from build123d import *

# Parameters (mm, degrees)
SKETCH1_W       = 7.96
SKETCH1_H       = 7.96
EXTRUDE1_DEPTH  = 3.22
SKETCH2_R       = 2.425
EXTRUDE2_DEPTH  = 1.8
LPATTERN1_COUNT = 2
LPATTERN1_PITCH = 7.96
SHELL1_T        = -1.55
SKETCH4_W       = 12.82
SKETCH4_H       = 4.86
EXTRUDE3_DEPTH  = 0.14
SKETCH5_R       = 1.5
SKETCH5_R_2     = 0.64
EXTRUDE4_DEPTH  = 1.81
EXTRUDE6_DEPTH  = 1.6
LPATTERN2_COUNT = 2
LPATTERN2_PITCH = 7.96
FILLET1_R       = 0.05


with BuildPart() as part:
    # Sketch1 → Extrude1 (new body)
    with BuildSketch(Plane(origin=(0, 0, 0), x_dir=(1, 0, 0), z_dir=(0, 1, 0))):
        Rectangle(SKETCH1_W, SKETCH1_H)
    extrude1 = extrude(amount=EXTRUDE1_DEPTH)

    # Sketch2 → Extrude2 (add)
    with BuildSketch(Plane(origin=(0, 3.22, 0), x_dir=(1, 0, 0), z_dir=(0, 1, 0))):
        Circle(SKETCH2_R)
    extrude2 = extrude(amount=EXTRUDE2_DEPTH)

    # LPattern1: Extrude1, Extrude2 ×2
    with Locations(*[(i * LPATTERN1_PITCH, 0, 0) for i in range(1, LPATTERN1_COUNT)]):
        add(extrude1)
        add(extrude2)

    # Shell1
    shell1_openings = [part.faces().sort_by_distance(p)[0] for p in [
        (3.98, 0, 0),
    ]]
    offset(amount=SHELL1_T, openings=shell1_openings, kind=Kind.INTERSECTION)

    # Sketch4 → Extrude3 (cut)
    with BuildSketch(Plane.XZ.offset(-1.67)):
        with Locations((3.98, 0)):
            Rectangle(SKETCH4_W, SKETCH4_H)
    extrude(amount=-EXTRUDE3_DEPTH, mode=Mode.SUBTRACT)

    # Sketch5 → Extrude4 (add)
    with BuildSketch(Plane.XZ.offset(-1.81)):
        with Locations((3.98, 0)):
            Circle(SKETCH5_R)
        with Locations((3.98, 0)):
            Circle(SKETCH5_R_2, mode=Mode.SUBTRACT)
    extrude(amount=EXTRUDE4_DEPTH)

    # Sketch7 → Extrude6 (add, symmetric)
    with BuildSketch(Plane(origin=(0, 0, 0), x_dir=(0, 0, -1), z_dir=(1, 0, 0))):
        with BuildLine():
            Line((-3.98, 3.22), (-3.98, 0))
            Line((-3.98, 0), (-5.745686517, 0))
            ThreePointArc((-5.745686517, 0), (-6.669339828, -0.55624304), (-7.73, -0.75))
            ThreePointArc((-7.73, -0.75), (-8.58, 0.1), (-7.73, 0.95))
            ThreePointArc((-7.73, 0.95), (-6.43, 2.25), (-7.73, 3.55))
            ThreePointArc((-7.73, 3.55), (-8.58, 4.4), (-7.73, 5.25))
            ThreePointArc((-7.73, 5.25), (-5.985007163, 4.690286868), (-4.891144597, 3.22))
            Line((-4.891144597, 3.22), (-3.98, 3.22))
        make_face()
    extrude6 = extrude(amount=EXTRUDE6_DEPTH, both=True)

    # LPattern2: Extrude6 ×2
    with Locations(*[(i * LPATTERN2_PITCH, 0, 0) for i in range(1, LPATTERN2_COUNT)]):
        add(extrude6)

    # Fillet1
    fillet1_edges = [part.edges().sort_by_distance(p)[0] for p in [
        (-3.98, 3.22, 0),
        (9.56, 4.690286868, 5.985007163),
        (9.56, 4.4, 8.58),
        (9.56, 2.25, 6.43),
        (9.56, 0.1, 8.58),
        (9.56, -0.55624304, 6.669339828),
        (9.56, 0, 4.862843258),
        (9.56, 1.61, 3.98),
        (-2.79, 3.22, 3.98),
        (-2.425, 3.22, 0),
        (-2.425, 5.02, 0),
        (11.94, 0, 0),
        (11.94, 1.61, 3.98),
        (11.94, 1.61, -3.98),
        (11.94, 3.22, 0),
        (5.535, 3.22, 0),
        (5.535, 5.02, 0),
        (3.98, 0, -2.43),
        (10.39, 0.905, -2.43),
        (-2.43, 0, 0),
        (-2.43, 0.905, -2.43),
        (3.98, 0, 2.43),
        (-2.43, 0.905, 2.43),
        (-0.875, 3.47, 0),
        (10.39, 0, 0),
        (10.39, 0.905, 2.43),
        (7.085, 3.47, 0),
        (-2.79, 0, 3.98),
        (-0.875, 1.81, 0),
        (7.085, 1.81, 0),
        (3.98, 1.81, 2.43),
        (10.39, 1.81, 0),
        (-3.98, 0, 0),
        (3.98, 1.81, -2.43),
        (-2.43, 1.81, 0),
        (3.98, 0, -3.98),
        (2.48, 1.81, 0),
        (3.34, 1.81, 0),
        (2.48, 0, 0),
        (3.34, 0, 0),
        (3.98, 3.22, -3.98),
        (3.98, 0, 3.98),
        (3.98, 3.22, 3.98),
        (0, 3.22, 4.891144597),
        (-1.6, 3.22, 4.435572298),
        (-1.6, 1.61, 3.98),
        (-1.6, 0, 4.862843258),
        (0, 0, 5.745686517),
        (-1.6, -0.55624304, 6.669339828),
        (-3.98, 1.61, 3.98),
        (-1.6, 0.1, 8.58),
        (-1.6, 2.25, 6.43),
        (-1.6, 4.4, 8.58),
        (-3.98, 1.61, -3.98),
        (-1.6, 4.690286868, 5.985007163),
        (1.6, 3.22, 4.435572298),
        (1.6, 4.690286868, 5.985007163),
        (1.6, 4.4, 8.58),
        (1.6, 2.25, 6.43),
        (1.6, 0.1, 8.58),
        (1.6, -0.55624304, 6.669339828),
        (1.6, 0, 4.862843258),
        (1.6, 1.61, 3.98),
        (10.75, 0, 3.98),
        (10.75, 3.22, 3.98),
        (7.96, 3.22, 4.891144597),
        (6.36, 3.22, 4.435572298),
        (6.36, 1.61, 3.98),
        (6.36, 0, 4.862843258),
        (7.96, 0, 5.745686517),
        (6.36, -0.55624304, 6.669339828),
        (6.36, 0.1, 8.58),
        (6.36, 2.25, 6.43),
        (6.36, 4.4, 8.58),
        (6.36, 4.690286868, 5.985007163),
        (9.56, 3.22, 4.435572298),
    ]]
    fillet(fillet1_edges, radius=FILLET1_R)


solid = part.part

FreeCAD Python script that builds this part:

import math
import FreeCAD as App
import Part
import Sketcher

V = App.Vector
Q = App.Units.Quantity


def faces_at(feature, points):
    """Names of the faces that lie closest to the given points."""
    faces = feature.Shape.Faces
    near = lambda p: min(range(len(faces)), key=lambda i: faces[i].distToShape(Part.Vertex(*p))[0])
    return sorted({f"Face{near(p) + 1}" for p in points})

doc = App.newDocument("Part")
body = doc.addObject("PartDesign::Body", "Body")

# Sketch on XZ plane
sketch1 = body.newObject("Sketcher::SketchObject", "Sketch")
sketch1.AttachmentSupport = (doc.getObject("XZ_Plane"), [""])
sketch1.MapMode = "FlatFace"
sketch1.addGeometry(Part.LineSegment(V(-3.98, -3.98, 0), V(-3.98, 3.98, 0)), False)
sketch1.addGeometry(Part.LineSegment(V(-3.98, 3.98, 0), V(3.98, 3.98, 0)), False)
sketch1.addGeometry(Part.LineSegment(V(3.98, 3.98, 0), V(3.98, -3.98, 0)), False)
sketch1.addGeometry(Part.LineSegment(V(3.98, -3.98, 0), V(-3.98, -3.98, 0)), False)
sketch1.addConstraint(Sketcher.Constraint("Coincident", 0, 2, 1, 1))
sketch1.addConstraint(Sketcher.Constraint("Coincident", 1, 2, 2, 1))
sketch1.addConstraint(Sketcher.Constraint("Coincident", 2, 2, 3, 1))
sketch1.addConstraint(Sketcher.Constraint("Coincident", 3, 2, 0, 1))
sketch1.addConstraint(Sketcher.Constraint("Vertical", 0))
sketch1.addConstraint(Sketcher.Constraint("Horizontal", 1))
sketch1.addConstraint(Sketcher.Constraint("Vertical", 2))
sketch1.addConstraint(Sketcher.Constraint("Horizontal", 3))
sketch1.addConstraint(Sketcher.Constraint("Symmetric", 0, 2, 2, 2, -1, 1))
sketch1.addConstraint(Sketcher.Constraint("Equal", 3, 0))
sketch1.addConstraint(Sketcher.Constraint("DistanceX", 1, 1, 1, 2, Q("7.96 mm")))
pad1 = body.newObject("PartDesign::Pad", "Pad")
pad1.Profile = sketch1
pad1.Length = 3.22
pad1.Reversed = True

# Sketch on XZ plane
sketch2 = body.newObject("Sketcher::SketchObject", "Sketch001")
sketch2.AttachmentSupport = (doc.getObject("XZ_Plane"), [""])
sketch2.MapMode = "FlatFace"
sketch2.AttachmentOffset = App.Placement(V(0, 0, -3.22), App.Rotation())
sketch2.addGeometry(Part.Circle(V(0, 0, 0), V(0, 0, 1), 2.425), False)
sketch2.addConstraint(Sketcher.Constraint("Coincident", 0, 3, -1, 1))
sketch2.addConstraint(Sketcher.Constraint("Diameter", 0, Q("4.85 mm")))
pad2 = body.newObject("PartDesign::Pad", "Pad001")
pad2.Profile = sketch2
pad2.Length = 1.8
pad2.Reversed = True
doc.recompute()

linearpattern = body.newObject("PartDesign::LinearPattern", "LinearPattern")
linearpattern.Originals = [pad1, pad2]
linearpattern.Direction = (doc.getObject("X_Axis"), [""])
linearpattern.Mode = "offset"
linearpattern.Offset = 7.96
linearpattern.Occurrences = 2
body.Tip = linearpattern
doc.recompute()

thickness = body.newObject("PartDesign::Thickness", "Thickness")
thickness.Base = (linearpattern, faces_at(linearpattern, [(3.98, 0, 0)]))
thickness.Value = 1.55
thickness.Reversed = True
thickness.Join = "Intersection"

# Sketch on XZ plane
sketch3 = body.newObject("Sketcher::SketchObject", "Sketch002")
sketch3.AttachmentSupport = (doc.getObject("XZ_Plane"), [""])
sketch3.MapMode = "FlatFace"
sketch3.AttachmentOffset = App.Placement(V(0, 0, -1.67), App.Rotation())
sketch3.addGeometry(Part.LineSegment(V(-2.43, 2.43, 0), V(-2.43, -2.43, 0)), False)
sketch3.addGeometry(Part.LineSegment(V(-2.43, -2.43, 0), V(10.39, -2.43, 0)), False)
sketch3.addGeometry(Part.LineSegment(V(10.39, -2.43, 0), V(10.39, 2.43, 0)), False)
sketch3.addGeometry(Part.LineSegment(V(10.39, 2.43, 0), V(-2.43, 2.43, 0)), False)
sketch3.addConstraint(Sketcher.Constraint("Coincident", 0, 2, 1, 1))
sketch3.addConstraint(Sketcher.Constraint("Coincident", 1, 2, 2, 1))
sketch3.addConstraint(Sketcher.Constraint("Coincident", 2, 2, 3, 1))
sketch3.addConstraint(Sketcher.Constraint("Coincident", 3, 2, 0, 1))
sketch3.addConstraint(Sketcher.Constraint("Vertical", 0))
sketch3.addConstraint(Sketcher.Constraint("Horizontal", 1))
sketch3.addConstraint(Sketcher.Constraint("Vertical", 2))
sketch3.addConstraint(Sketcher.Constraint("Horizontal", 3))
sketch3.addConstraint(Sketcher.Constraint("DistanceX", 1, 1, 1, 2, Q("12.82 mm")))
sketch3.addConstraint(Sketcher.Constraint("DistanceY", 0, 2, 0, 1, Q("4.86 mm")))
sketch3.addConstraint(Sketcher.Constraint("DistanceX", 0, 2, -1, 1, Q("2.43 mm")))
sketch3.addConstraint(Sketcher.Constraint("DistanceY", 0, 2, -1, 1, Q("2.43 mm")))
pocket1 = body.newObject("PartDesign::Pocket", "Pocket")
pocket1.Profile = sketch3
pocket1.Length = 0.14

# Sketch on XZ plane
sketch4 = body.newObject("Sketcher::SketchObject", "Sketch003")
sketch4.AttachmentSupport = (doc.getObject("XZ_Plane"), [""])
sketch4.MapMode = "FlatFace"
sketch4.AttachmentOffset = App.Placement(V(0, 0, -1.81), App.Rotation())
sketch4.addGeometry(Part.Circle(V(3.98, 0, 0), V(0, 0, 1), 1.5), False)
sketch4.addGeometry(Part.Circle(V(3.98, 0, 0), V(0, 0, 1), 0.64), False)
sketch4.addConstraint(Sketcher.Constraint("Coincident", 1, 3, 0, 3))
sketch4.addConstraint(Sketcher.Constraint("PointOnObject", 0, 3, -1))
sketch4.addConstraint(Sketcher.Constraint("Diameter", 0, Q("3 mm")))
sketch4.addConstraint(Sketcher.Constraint("Diameter", 1, Q("1.28 mm")))
sketch4.addConstraint(Sketcher.Constraint("DistanceX", -1, 1, 0, 3, Q("3.98 mm")))
pad3 = body.newObject("PartDesign::Pad", "Pad002")
pad3.Profile = sketch4
pad3.Length = 1.81

# Sketch on YZ plane
sketch5 = body.newObject("Sketcher::SketchObject", "Sketch004")
sketch5.AttachmentSupport = (doc.getObject("YZ_Plane"), [""])
sketch5.MapMode = "FlatFace"
sketch5.addGeometry(Part.LineSegment(V(0, 3.98, 0), V(3.22, 3.98, 0)), False)
sketch5.addGeometry(Part.LineSegment(V(3.22, 3.98, 0), V(3.22, 4.891145, 0)), False)
sketch5.addGeometry(Part.ArcOfCircle(Part.Circle(V(2.25, 7.73, 0), V(0, 0, 1), 3), math.radians(-71.135369), math.radians(0)), False)
sketch5.addGeometry(Part.ArcOfCircle(Part.Circle(V(4.4, 7.73, 0), V(0, 0, 1), 0.85), math.radians(0), math.radians(180)), False)
sketch5.addGeometry(Part.ArcOfCircle(Part.Circle(V(2.25, 7.73, 0), V(0, 0, 1), 1.3), math.radians(180), math.radians(360)), False)
sketch5.addGeometry(Part.ArcOfCircle(Part.Circle(V(0.1, 7.73, 0), V(0, 0, 1), 0.85), math.radians(0), math.radians(180)), False)
sketch5.addGeometry(Part.ArcOfCircle(Part.Circle(V(2.25, 7.73, 0), V(0, 0, 1), 3), math.radians(180), math.radians(221.409622)), False)
sketch5.addGeometry(Part.LineSegment(V(0, 5.745687, 0), V(0, 3.98, 0)), False)
sketch5.addConstraint(Sketcher.Constraint("Coincident", 0, 2, 1, 1))
sketch5.addConstraint(Sketcher.Constraint("Coincident", 1, 2, 2, 1))
sketch5.addConstraint(Sketcher.Constraint("Tangent", 2, 2, 3, 1))
sketch5.addConstraint(Sketcher.Constraint("Tangent", 3, 2, 4, 2))
sketch5.addConstraint(Sketcher.Constraint("Tangent", 4, 1, 5, 1))
sketch5.addConstraint(Sketcher.Constraint("Tangent", 5, 2, 6, 1))
sketch5.addConstraint(Sketcher.Constraint("Coincident", 6, 2, 7, 1))
sketch5.addConstraint(Sketcher.Constraint("Coincident", 7, 2, 0, 1))
sketch5.addConstraint(Sketcher.Constraint("Horizontal", 0))
sketch5.addConstraint(Sketcher.Constraint("Vertical", 1))
sketch5.addConstraint(Sketcher.Constraint("Vertical", 7))
sketch5.addConstraint(Sketcher.Constraint("Coincident", 4, 3, 2, 3))
sketch5.addConstraint(Sketcher.Constraint("Coincident", 6, 3, 2, 3))
sketch5.addConstraint(Sketcher.Constraint("Equal", 3, 5))
sketch5.addConstraint(Sketcher.Constraint("PointOnObject", 6, 2, -2))
sketch5.addConstraint(Sketcher.Constraint("Horizontal", 2, 3, 3, 3))
sketch5.addConstraint(Sketcher.Constraint("Horizontal", 4, 3, 5, 3))
sketch5.addConstraint(Sketcher.Constraint("Radius", 2, Q("3 mm")))
sketch5.addConstraint(Sketcher.Constraint("Radius", 4, Q("1.3 mm")))
sketch5.addConstraint(Sketcher.Constraint("DistanceX", 0, 1, 0, 2, Q("3.22 mm")))
sketch5.addConstraint(Sketcher.Constraint("DistanceX", -1, 1, 3, 3, Q("4.4 mm")))
sketch5.addConstraint(Sketcher.Constraint("DistanceY", -1, 1, 2, 3, Q("7.73 mm")))
sketch5.addConstraint(Sketcher.Constraint("DistanceY", -1, 1, 0, 2, Q("3.98 mm")))
pad4 = body.newObject("PartDesign::Pad", "Pad003")
pad4.Profile = sketch5
pad4.Length = 3.2
pad4.Midplane = True
doc.recompute()

linearpattern2 = body.newObject("PartDesign::LinearPattern", "LinearPattern001")
linearpattern2.Originals = [pad4]
linearpattern2.Direction = (doc.getObject("X_Axis"), [""])
linearpattern2.Mode = "offset"
linearpattern2.Offset = 7.96
linearpattern2.Occurrences = 2
body.Tip = linearpattern2
doc.recompute()

fillet = body.newObject("PartDesign::Fillet", "Fillet")
fillet.Base = (linearpattern2, ["Edge1"])
fillet.UseAllEdges = True
fillet.Radius = 0.05

doc.recompute()
